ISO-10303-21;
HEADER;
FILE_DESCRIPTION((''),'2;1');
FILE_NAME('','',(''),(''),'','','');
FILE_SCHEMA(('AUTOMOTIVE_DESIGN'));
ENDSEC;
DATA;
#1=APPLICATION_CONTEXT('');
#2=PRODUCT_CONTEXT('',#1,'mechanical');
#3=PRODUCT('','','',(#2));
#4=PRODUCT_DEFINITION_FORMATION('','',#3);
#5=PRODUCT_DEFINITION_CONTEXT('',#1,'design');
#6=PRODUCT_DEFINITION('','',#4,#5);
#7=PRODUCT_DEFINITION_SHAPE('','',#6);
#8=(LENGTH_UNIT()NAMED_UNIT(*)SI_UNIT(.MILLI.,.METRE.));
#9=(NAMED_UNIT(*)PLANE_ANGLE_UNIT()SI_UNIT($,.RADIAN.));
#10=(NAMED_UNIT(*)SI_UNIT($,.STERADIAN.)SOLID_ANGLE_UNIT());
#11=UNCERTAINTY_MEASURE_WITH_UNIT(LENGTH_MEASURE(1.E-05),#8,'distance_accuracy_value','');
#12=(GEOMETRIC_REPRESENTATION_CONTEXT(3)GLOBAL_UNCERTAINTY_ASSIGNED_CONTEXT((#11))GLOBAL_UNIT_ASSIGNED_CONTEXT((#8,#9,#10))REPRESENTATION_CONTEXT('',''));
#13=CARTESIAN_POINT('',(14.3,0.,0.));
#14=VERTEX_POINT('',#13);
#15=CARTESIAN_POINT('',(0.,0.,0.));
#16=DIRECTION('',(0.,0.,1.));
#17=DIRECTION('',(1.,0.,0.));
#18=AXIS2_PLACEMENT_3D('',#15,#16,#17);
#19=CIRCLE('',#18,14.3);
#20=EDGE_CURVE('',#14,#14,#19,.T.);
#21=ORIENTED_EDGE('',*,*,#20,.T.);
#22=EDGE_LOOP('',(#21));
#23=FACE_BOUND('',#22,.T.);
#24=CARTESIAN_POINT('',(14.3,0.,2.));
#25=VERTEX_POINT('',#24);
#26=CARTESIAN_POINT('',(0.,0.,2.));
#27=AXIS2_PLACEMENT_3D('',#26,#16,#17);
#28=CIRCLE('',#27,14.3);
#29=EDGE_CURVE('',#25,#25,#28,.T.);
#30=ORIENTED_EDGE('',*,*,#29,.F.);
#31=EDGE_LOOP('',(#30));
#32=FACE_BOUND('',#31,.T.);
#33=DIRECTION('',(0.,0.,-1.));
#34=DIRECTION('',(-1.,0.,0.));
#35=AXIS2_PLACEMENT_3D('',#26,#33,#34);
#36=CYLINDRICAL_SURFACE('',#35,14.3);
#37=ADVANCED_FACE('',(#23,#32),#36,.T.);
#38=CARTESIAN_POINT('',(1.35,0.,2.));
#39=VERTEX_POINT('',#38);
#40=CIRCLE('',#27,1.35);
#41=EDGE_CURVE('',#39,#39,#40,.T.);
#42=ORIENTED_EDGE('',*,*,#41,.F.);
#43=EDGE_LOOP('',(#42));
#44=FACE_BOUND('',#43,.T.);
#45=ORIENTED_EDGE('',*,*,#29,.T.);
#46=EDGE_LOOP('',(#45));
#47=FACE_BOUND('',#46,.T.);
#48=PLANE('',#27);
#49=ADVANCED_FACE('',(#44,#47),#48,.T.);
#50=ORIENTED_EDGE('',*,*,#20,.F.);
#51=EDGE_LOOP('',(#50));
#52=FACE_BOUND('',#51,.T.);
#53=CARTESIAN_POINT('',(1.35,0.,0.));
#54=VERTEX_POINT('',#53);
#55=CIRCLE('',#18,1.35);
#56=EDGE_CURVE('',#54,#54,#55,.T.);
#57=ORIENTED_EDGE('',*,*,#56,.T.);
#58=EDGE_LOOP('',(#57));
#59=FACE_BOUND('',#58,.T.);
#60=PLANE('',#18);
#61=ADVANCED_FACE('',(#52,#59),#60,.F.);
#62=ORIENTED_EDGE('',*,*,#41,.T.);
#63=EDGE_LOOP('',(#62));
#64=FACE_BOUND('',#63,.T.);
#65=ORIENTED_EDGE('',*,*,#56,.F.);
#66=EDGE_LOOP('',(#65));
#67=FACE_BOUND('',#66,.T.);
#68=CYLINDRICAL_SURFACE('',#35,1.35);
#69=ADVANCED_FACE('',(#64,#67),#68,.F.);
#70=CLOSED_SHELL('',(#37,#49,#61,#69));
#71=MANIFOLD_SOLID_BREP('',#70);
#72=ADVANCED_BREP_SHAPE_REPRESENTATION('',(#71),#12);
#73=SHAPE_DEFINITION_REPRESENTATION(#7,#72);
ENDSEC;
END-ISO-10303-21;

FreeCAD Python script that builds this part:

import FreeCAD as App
import Part
import Sketcher

V = App.Vector
Q = App.Units.Quantity

doc = App.newDocument("Part")
body = doc.addObject("PartDesign::Body", "Body")

# Sketch on XY plane
sketch1 = doc.addObject("Sketcher::SketchObject", "Sketch")
body.addObject(sketch1)
sketch1.AttachmentSupport = (doc.XY_Plane, [""])
sketch1.MapMode = "FlatFace"
sketch1.addGeometry([
    Part.Circle(V(0, 0, 0), V(0, 0, 1), 14.3),
    Part.Circle(V(0, 0, 0), V(0, 0, 1), 1.4),
], False)
sketch1.addConstraint([
    Sketcher.Constraint("Coincident", 0, 3, -1, 1),
    Sketcher.Constraint("Coincident", 1, 3, -1, 1),
    Sketcher.Constraint("Diameter", 0, Q("28.6 mm")),
    Sketcher.Constraint("Diameter", 1, Q("2.7 mm")),
])
pad1 = doc.addObject("PartDesign::Pad", "Pad")
body.addObject(pad1)
pad1.Profile = sketch1
pad1.Length = 2

doc.recompute()
